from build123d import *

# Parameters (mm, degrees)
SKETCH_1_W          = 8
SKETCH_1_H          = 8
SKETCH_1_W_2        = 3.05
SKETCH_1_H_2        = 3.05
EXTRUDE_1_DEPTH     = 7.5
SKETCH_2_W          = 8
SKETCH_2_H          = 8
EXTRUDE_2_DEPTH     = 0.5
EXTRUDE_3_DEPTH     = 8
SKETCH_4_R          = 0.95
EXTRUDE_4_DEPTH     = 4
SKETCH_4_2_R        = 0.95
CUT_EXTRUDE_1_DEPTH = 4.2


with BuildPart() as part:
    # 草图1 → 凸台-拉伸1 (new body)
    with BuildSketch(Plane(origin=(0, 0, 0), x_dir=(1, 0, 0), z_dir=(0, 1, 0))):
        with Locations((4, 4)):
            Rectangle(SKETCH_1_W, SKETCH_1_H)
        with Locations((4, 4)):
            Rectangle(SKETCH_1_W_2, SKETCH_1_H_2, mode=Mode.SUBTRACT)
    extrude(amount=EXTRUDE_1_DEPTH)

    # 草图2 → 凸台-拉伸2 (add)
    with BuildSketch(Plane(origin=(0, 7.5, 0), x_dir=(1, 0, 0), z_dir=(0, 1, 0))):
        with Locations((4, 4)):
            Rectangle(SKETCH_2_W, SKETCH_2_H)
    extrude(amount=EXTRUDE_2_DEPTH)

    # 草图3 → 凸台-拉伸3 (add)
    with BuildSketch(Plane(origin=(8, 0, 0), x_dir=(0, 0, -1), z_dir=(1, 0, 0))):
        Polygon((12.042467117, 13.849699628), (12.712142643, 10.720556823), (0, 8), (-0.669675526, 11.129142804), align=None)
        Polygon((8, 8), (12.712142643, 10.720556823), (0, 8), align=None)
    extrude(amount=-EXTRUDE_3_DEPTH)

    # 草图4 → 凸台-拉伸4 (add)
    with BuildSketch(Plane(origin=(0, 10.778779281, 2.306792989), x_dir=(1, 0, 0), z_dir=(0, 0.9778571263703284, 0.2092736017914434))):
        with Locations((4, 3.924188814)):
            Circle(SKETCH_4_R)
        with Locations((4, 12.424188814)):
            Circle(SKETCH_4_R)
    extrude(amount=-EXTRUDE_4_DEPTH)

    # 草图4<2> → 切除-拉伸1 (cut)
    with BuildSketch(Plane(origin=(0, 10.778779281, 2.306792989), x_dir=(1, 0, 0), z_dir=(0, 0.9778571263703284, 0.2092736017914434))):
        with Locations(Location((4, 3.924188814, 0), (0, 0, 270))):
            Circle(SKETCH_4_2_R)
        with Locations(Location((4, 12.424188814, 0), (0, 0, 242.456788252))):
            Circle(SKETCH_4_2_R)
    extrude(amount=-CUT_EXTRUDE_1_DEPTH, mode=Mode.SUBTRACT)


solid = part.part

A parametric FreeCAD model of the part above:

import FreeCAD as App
import Part
import Sketcher
Q = App.Units.Quantity


def add_polygon(sketch, points):
    """Adds a closed chain of lines whose ends are joined by coincident constraints."""
    first, n = sketch.GeometryCount, len(points)
    for a, b in zip(points, points[1:] + points[:1]):
        sketch.addGeometry(Part.LineSegment(App.Vector(*a, 0), App.Vector(*b, 0)), False)
    for i in range(n):
        sketch.addConstraint(Sketcher.Constraint("Coincident", first + i, 2, first + (i + 1) % n, 1))

doc = App.newDocument("Part")
body = doc.addObject("PartDesign::Body", "Body")

# Sketch on XZ plane
sketch1 = doc.addObject("Sketcher::SketchObject", "Sketch")
body.addObject(sketch1)
sketch1.AttachmentSupport = (doc.XZ_Plane, [""])
sketch1.MapMode = "FlatFace"
add_polygon(sketch1, [(0, -8), (0, 0), (8, 0), (8, -8)])  # lines 0-3
add_polygon(sketch1, [(5.525, -2.475), (2.475, -2.475), (2.475, -5.525), (5.525, -5.525)])  # lines 4-7
sketch1.addConstraint([
    Sketcher.Constraint("Vertical", 0),
    Sketcher.Constraint("Horizontal", 1),
    Sketcher.Constraint("Vertical", 2),
    Sketcher.Constraint("Horizontal", 3),
    Sketcher.Constraint("Horizontal", 4),
    Sketcher.Constraint("Vertical", 5),
    Sketcher.Constraint("Horizontal", 6),
    Sketcher.Constraint("Vertical", 7),
    Sketcher.Constraint("Coincident", 0, 2, -1, 1),
    Sketcher.Constraint("Equal", 3, 0),
    Sketcher.Constraint("Equal", 6, 5),
    Sketcher.Constraint("DistanceX", 1, 1, 1, 2, 8.0),
    Sketcher.Constraint("DistanceX", 4, 2, 4, 1, 3.05),
    Sketcher.Constraint("DistanceX", -1, 1, 4, 2, 2.475),
    Sketcher.Constraint("DistanceY", 4, 2, -1, 1, 2.475),
])
pad1 = doc.addObject("PartDesign::Pad", "Pad")
body.addObject(pad1)
pad1.Profile = sketch1
pad1.Length = 7.5
pad1.Reversed = True

# Sketch on XZ plane
sketch2 = doc.addObject("Sketcher::SketchObject", "Sketch001")
body.addObject(sketch2)
sketch2.AttachmentSupport = (doc.XZ_Plane, [""])
sketch2.MapMode = "FlatFace"
sketch2.AttachmentOffset = App.Placement(App.Vector(0, 0, -7.5), App.Rotation())
add_polygon(sketch2, [(0, -8), (0, 0), (8, 0), (8, -8)])  # lines 0-3
sketch2.addConstraint([
    Sketcher.Constraint("Vertical", 0),
    Sketcher.Constraint("Horizontal", 1),
    Sketcher.Constraint("Vertical", 2),
    Sketcher.Constraint("Horizontal", 3),
    Sketcher.Constraint("Coincident", 0, 2, -1, 1),
    Sketcher.Constraint("Equal", 3, 0),
    Sketcher.Constraint("DistanceX", 1, 1, 1, 2, 8.0),
])
pad2 = doc.addObject("PartDesign::Pad", "Pad001")
body.addObject(pad2)
pad2.Profile = sketch2
pad2.Length = 0.5
pad2.Reversed = True

# Sketch on YZ plane
sketch3 = doc.addObject("Sketcher::SketchObject", "Sketch002")
body.addObject(sketch3)
sketch3.AttachmentSupport = (doc.YZ_Plane, [""])
sketch3.MapMode = "FlatFace"
sketch3.AttachmentOffset = App.Placement(App.Vector(0, 0, 8), App.Rotation())
add_polygon(sketch3, [(10.720557, -12.712143), (13.8497, -12.042467), (11.129143, 0.669676), (8, 0), (8, -8)])  # lines 0-4
sketch3.addConstraint([
    Sketcher.Constraint("Vertical", 3),
    Sketcher.Constraint("PointOnObject", 2, 2, -1),
    Sketcher.Constraint("Perpendicular", 0, 1),
    Sketcher.Constraint("Perpendicular", 1, 2),
    Sketcher.Constraint("Equal", 0, 2),
    Sketcher.Constraint("DistanceY", 3, 2, 3, 1, 8.0),
    Sketcher.Constraint("Angle", 4, Q("-60 deg")),
    Sketcher.Constraint("Distance", 1, 13.0),
    Sketcher.Constraint("DistanceX", -1, 1, 2, 2, 8.0),
    Sketcher.Constraint("Distance", 0, 3.2),
])
pad3 = doc.addObject("PartDesign::Pad", "Pad002")
body.addObject(pad3)
pad3.Profile = sketch3
pad3.Length = 8
pad3.Reversed = True

# Sketch on an angled plane
sketch4 = doc.addObject("Sketcher::SketchObject", "Sketch003")
body.addObject(sketch4)
sketch4.Placement = App.Placement(App.Vector(0, 10.778779, 2.306793), App.Rotation(App.Vector(1, 0, 0), App.Vector(0, 0.209273602, -0.977857126), App.Vector(0, 0.977857126, 0.209273602), "ZXY"))
sketch4.addGeometry([
    Part.Circle(App.Vector(4, 3.924189, 0), App.Vector(0, 0, 1), 0.95),
    Part.Circle(App.Vector(4, 12.424189, 0), App.Vector(0, 0, 1), 0.95),
], False)
sketch4.addConstraint([
    Sketcher.Constraint("Equal", 0, 1),
    Sketcher.Constraint("Vertical", 0, 3, 1, 3),
    Sketcher.Constraint("Diameter", 0, 1.9),
    Sketcher.Constraint("DistanceX", -1, 1, 0, 3, 4.0),
    Sketcher.Constraint("DistanceY", 0, 3, 1, 3, 8.5),
    Sketcher.Constraint("DistanceY", -1, 1, 0, 3, 3.924189),
])
pad4 = doc.addObject("PartDesign::Pad", "Pad003")
body.addObject(pad4)
pad4.Profile = sketch4
pad4.Length = 4
pad4.Reversed = True

# Sketch on an angled plane
sketch5 = doc.addObject("Sketcher::SketchObject", "Sketch004")
body.addObject(sketch5)
sketch5.Placement = App.Placement(App.Vector(0, 10.778779, 2.306793), App.Rotation(App.Vector(1, 0, 0), App.Vector(0, 0.209273602, -0.977857126), App.Vector(0, 0.977857126, 0.209273602), "ZXY"))
sketch5.addGeometry([
    Part.Circle(App.Vector(4, 3.924189, 0), App.Vector(0, 0, 1), 0.95),
    Part.Circle(App.Vector(4, 12.424189, 0), App.Vector(0, 0, 1), 0.95),
], False)
sketch5.addConstraint([
    Sketcher.Constraint("Equal", 0, 1),
    Sketcher.Constraint("Vertical", 0, 3, 1, 3),
    Sketcher.Constraint("Diameter", 0, 1.9),
    Sketcher.Constraint("DistanceX", -1, 1, 0, 3, 4.0),
    Sketcher.Constraint("DistanceY", 0, 3, 1, 3, 8.5),
    Sketcher.Constraint("DistanceY", -1, 1, 0, 3, 3.924189),
])
pocket1 = doc.addObject("PartDesign::Pocket", "Pocket")
body.addObject(pocket1)
pocket1.Profile = sketch5
pocket1.Length = 4.2

doc.recompute()
